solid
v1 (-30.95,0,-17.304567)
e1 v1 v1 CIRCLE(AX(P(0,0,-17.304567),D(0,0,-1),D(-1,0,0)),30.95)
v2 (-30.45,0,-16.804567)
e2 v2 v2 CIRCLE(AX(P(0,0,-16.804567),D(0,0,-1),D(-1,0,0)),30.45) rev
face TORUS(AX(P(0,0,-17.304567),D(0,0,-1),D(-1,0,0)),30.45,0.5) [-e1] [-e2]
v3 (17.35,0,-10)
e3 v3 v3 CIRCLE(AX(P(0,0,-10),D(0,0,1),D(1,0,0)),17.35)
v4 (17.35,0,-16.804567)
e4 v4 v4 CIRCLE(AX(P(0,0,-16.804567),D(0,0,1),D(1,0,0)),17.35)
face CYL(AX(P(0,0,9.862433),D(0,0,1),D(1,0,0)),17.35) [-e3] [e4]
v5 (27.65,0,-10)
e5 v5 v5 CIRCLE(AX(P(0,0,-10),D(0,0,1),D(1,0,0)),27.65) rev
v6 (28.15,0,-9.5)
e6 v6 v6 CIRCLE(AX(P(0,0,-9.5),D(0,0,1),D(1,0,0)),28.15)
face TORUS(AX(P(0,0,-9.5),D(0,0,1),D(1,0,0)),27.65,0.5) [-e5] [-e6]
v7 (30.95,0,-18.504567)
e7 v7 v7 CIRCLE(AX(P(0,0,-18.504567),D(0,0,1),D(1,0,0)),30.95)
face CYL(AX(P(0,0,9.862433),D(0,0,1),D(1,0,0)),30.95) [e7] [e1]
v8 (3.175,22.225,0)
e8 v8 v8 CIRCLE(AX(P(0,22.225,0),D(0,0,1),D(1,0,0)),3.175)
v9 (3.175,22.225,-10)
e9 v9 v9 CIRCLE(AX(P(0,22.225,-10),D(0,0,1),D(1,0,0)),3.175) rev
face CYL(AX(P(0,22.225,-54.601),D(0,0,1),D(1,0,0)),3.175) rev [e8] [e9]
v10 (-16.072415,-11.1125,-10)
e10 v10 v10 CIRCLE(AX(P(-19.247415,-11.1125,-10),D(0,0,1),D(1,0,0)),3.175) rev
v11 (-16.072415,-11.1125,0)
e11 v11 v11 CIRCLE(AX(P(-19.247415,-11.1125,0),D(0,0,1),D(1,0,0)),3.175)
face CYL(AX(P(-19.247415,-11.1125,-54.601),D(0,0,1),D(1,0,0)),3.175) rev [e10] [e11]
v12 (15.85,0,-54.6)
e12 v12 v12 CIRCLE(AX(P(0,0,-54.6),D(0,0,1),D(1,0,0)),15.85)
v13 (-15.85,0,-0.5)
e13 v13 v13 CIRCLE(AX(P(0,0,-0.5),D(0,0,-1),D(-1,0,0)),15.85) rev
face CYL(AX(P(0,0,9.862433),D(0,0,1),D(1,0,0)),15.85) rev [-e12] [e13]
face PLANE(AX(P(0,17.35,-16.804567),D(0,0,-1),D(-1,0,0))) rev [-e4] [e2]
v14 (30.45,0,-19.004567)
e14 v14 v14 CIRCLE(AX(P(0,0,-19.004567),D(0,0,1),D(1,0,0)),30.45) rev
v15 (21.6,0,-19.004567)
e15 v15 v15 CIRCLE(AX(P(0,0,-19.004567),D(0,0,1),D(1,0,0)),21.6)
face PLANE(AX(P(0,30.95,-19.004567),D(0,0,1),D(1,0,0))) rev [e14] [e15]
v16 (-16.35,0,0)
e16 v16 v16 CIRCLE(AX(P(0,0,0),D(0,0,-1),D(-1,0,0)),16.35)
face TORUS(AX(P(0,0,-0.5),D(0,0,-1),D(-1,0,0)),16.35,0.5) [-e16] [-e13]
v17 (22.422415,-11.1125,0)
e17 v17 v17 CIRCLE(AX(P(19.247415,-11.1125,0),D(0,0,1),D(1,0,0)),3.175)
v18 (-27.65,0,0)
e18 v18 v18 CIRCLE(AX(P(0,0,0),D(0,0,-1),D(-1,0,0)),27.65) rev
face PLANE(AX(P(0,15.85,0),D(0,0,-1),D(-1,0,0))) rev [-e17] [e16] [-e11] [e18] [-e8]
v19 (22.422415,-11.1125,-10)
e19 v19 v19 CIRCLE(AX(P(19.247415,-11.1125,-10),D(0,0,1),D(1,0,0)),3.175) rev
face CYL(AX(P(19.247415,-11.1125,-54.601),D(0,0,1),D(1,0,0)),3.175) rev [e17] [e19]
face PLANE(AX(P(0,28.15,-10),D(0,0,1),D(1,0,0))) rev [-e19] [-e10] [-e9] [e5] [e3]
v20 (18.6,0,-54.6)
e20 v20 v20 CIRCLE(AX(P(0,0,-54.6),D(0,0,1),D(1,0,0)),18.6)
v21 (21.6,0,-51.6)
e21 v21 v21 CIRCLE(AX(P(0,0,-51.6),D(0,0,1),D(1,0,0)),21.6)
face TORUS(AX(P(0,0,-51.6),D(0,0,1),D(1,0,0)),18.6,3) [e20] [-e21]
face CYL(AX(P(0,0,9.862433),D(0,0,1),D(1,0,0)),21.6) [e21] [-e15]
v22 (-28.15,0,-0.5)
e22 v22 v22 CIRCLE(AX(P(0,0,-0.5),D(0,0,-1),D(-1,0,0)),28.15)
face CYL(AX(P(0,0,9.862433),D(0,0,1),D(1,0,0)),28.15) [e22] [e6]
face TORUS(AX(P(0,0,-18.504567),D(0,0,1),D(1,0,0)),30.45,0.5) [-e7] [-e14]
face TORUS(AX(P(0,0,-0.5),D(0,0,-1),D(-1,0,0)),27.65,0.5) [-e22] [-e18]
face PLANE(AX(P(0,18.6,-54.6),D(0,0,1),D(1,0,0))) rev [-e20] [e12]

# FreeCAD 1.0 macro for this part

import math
import FreeCAD as App
import Part
import Sketcher

V = App.Vector


def edges_at(feature, points):
    """Names of the edges that pass closest to the given points."""
    edges = feature.Shape.Edges
    near = lambda p: min(range(len(edges)), key=lambda i: edges[i].distToShape(Part.Vertex(*p))[0])
    return sorted({f"Edge{near(p) + 1}" for p in points})

doc = App.newDocument("Part")
params = doc.addObject("Spreadsheet::Sheet", "Params")
for row, (alias, value) in enumerate([
    ("sketch1_radius", "3 mm"),
    ("sketch1_height", "10 mm"),
    ("sketch1_width", "12.3 mm"),
    ("sketch1_width2", "13.6 mm"),
    ("sketch1_width3", "10.8 mm"),
    ("revolution_angle", "360 deg"),
    ("fillet_radius", "0.5 mm"),
    ("sketch2_diameter", "6.35 mm"),
    ("sketch3_diameter", "6.35 mm"),
    ("sketch4_diameter", "6.35 mm"),
], start=1):
    params.set(f"A{row}", alias)
    params.set(f"B{row}", "=" + value)
    params.setAlias(f"B{row}", alias)

body = doc.addObject("PartDesign::Body", "Body")

# Sketch on YZ plane
sketch1 = doc.addObject("Sketcher::SketchObject", "Sketch")
body.addObject(sketch1)
sketch1.AttachmentSupport = (doc.YZ_Plane, [""])
sketch1.MapMode = "FlatFace"
sketch1.addGeometry(Part.LineSegment(V(28.1, 0, 0), V(15.8, 0, 0)), False)
sketch1.addGeometry(Part.LineSegment(V(15.8, 0, 0), V(15.8, -54.6, 0)), False)
sketch1.addGeometry(Part.LineSegment(V(15.8, -54.6, 0), V(18.6, -54.6, 0)), False)
sketch1.addGeometry(Part.ArcOfCircle(Part.Circle(V(18.6, -51.6, 0), V(0, 0, 1), 3), math.radians(-90), math.radians(0)), False)
sketch1.addGeometry(Part.LineSegment(V(21.6, -51.6, 0), V(21.6, -19, 0)), False)
sketch1.addGeometry(Part.LineSegment(V(21.6, -19, 0), V(30.9, -19, 0)), False)
sketch1.addGeometry(Part.LineSegment(V(30.9, -19, 0), V(30.9, -16.8, 0)), False)
sketch1.addGeometry(Part.LineSegment(V(30.9, -16.8, 0), V(17.4, -16.8, 0)), False)
sketch1.addGeometry(Part.LineSegment(V(17.4, -16.8, 0), V(17.4, -10, 0)), False)
sketch1.addGeometry(Part.LineSegment(V(17.4, -10, 0), V(28.1, -10, 0)), False)
sketch1.addGeometry(Part.LineSegment(V(28.1, -10, 0), V(28.1, 0, 0)), False)
sketch1.addConstraint(Sketcher.Constraint("Coincident", 0, 2, 1, 1))
sketch1.addConstraint(Sketcher.Constraint("Coincident", 1, 2, 2, 1))
sketch1.addConstraint(Sketcher.Constraint("Tangent", 2, 2, 3, 1))
sketch1.addConstraint(Sketcher.Constraint("Tangent", 3, 2, 4, 1))
sketch1.addConstraint(Sketcher.Constraint("Coincident", 4, 2, 5, 1))
sketch1.addConstraint(Sketcher.Constraint("Coincident", 5, 2, 6, 1))
sketch1.addConstraint(Sketcher.Constraint("Coincident", 6, 2, 7, 1))
sketch1.addConstraint(Sketcher.Constraint("Coincident", 7, 2, 8, 1))
sketch1.addConstraint(Sketcher.Constraint("Coincident", 8, 2, 9, 1))
sketch1.addConstraint(Sketcher.Constraint("Coincident", 9, 2, 10, 1))
sketch1.addConstraint(Sketcher.Constraint("Coincident", 10, 2, 0, 1))
sketch1.addConstraint(Sketcher.Constraint("Horizontal", 0))
sketch1.addConstraint(Sketcher.Constraint("Vertical", 1))
sketch1.addConstraint(Sketcher.Constraint("Horizontal", 2))
sketch1.addConstraint(Sketcher.Constraint("Vertical", 4))
sketch1.addConstraint(Sketcher.Constraint("Horizontal", 5))
sketch1.addConstraint(Sketcher.Constraint("Vertical", 6))
sketch1.addConstraint(Sketcher.Constraint("Horizontal", 7))
sketch1.addConstraint(Sketcher.Constraint("Vertical", 8))
sketch1.addConstraint(Sketcher.Constraint("Horizontal", 9))
sketch1.addConstraint(Sketcher.Constraint("Vertical", 10))
sketch1.addConstraint(Sketcher.Constraint("PointOnObject", 0, 2, -1))
sketch1.addConstraint(Sketcher.Constraint("Radius", 3, 3.0))
sketch1.addConstraint(Sketcher.Constraint("DistanceY", 10, 1, 10, 2, 10.0))
sketch1.addConstraint(Sketcher.Constraint("DistanceX", 0, 2, 0, 1, 12.3))
sketch1.addConstraint(Sketcher.Constraint("DistanceX", 7, 2, 7, 1, 13.6))
sketch1.addConstraint(Sketcher.Constraint("DistanceX", 9, 1, 9, 2, 10.8))
sketch1.addConstraint(Sketcher.Constraint("DistanceY", 1, 2, 1, 1, 54.6))
sketch1.addConstraint(Sketcher.Constraint("DistanceY", 6, 1, 6, 2, 2.2))
sketch1.addConstraint(Sketcher.Constraint("DistanceX", 2, 1, 2, 2, 2.75))
sketch1.addConstraint(Sketcher.Constraint("DistanceX", -1, 1, 3, 3, 18.6))
sketch1.addConstraint(Sketcher.Constraint("DistanceY", 4, 1, 4, 2, 32.595433))
sketch1.setExpression("Constraints[22]", "Params.sketch1_radius")
sketch1.setExpression("Constraints[23]", "Params.sketch1_height")
sketch1.setExpression("Constraints[24]", "Params.sketch1_width")
sketch1.setExpression("Constraints[25]", "Params.sketch1_width2")
sketch1.setExpression("Constraints[26]", "Params.sketch1_width3")
revolution = doc.addObject("PartDesign::Revolution", "Revolution")
body.addObject(revolution)
revolution.Profile = sketch1
revolution.ReferenceAxis = (sketch1, ["V_Axis"])
revolution.setExpression("Angle", "Params.revolution_angle")
doc.recompute()

fillet = doc.addObject("PartDesign::Fillet", "Fillet")
body.addObject(fillet)
fillet.Base = (revolution, edges_at(revolution, [
    (0, -28.15, -10),
    (0, -28.15, 0),
    (0, -15.85, 0),
    (0, -30.95, -19.005),
    (0, -30.95, -16.805),
]))
fillet.setExpression("Radius", "Params.fillet_radius")

# Sketch on XY plane
sketch2 = doc.addObject("Sketcher::SketchObject", "Sketch001")
body.addObject(sketch2)
sketch2.AttachmentSupport = (doc.XY_Plane, [""])
sketch2.MapMode = "FlatFace"
sketch2.addGeometry(Part.Circle(V(0, 22.2, 0), V(0, 0, 1), 3.2), False)
sketch2.addConstraint(Sketcher.Constraint("PointOnObject", 0, 3, -2))
sketch2.addConstraint(Sketcher.Constraint("Diameter", 0, 6.35))
sketch2.addConstraint(Sketcher.Constraint("DistanceY", -1, 1, 0, 3, 22.225))
sketch2.setExpression("Constraints[1]", "Params.sketch2_diameter")
pocket1 = doc.addObject("PartDesign::Pocket", "Pocket")
body.addObject(pocket1)
pocket1.Profile = sketch2
pocket1.Type = "UpToFirst"

# Sketch on XY plane
sketch3 = doc.addObject("Sketcher::SketchObject", "Sketch002")
body.addObject(sketch3)
sketch3.AttachmentSupport = (doc.XY_Plane, [""])
sketch3.MapMode = "FlatFace"
sketch3.addGeometry(Part.Circle(V(19.2, -11.1, 0), V(0, 0, 1), 3.2), False)
sketch3.addConstraint(Sketcher.Constraint("Diameter", 0, 6.35))
sketch3.addConstraint(Sketcher.Constraint("DistanceY", 0, 3, -1, 1, 11.1125))
sketch3.addConstraint(Sketcher.Constraint("DistanceX", -1, 1, 0, 3, 19.247415))
sketch3.setExpression("Constraints[0]", "Params.sketch3_diameter")
pocket2 = doc.addObject("PartDesign::Pocket", "Pocket001")
body.addObject(pocket2)
pocket2.Profile = sketch3
pocket2.Type = "UpToFirst"

# Sketch on XY plane
sketch4 = doc.addObject("Sketcher::SketchObject", "Sketch003")
body.addObject(sketch4)
sketch4.AttachmentSupport = (doc.XY_Plane, [""])
sketch4.MapMode = "FlatFace"
sketch4.addGeometry(Part.Circle(V(-19.2, -11.1, 0), V(0, 0, 1), 3.2), False)
sketch4.addConstraint(Sketcher.Constraint("Diameter", 0, 6.35))
sketch4.addConstraint(Sketcher.Constraint("DistanceY", 0, 3, -1, 1, 11.1125))
sketch4.addConstraint(Sketcher.Constraint("DistanceX", 0, 3, -1, 1, 19.247415))
sketch4.setExpression("Constraints[0]", "Params.sketch4_diameter")
pocket3 = doc.addObject("PartDesign::Pocket", "Pocket002")
body.addObject(pocket3)
pocket3.Profile = sketch4
pocket3.Type = "UpToFirst"

doc.recompute()
